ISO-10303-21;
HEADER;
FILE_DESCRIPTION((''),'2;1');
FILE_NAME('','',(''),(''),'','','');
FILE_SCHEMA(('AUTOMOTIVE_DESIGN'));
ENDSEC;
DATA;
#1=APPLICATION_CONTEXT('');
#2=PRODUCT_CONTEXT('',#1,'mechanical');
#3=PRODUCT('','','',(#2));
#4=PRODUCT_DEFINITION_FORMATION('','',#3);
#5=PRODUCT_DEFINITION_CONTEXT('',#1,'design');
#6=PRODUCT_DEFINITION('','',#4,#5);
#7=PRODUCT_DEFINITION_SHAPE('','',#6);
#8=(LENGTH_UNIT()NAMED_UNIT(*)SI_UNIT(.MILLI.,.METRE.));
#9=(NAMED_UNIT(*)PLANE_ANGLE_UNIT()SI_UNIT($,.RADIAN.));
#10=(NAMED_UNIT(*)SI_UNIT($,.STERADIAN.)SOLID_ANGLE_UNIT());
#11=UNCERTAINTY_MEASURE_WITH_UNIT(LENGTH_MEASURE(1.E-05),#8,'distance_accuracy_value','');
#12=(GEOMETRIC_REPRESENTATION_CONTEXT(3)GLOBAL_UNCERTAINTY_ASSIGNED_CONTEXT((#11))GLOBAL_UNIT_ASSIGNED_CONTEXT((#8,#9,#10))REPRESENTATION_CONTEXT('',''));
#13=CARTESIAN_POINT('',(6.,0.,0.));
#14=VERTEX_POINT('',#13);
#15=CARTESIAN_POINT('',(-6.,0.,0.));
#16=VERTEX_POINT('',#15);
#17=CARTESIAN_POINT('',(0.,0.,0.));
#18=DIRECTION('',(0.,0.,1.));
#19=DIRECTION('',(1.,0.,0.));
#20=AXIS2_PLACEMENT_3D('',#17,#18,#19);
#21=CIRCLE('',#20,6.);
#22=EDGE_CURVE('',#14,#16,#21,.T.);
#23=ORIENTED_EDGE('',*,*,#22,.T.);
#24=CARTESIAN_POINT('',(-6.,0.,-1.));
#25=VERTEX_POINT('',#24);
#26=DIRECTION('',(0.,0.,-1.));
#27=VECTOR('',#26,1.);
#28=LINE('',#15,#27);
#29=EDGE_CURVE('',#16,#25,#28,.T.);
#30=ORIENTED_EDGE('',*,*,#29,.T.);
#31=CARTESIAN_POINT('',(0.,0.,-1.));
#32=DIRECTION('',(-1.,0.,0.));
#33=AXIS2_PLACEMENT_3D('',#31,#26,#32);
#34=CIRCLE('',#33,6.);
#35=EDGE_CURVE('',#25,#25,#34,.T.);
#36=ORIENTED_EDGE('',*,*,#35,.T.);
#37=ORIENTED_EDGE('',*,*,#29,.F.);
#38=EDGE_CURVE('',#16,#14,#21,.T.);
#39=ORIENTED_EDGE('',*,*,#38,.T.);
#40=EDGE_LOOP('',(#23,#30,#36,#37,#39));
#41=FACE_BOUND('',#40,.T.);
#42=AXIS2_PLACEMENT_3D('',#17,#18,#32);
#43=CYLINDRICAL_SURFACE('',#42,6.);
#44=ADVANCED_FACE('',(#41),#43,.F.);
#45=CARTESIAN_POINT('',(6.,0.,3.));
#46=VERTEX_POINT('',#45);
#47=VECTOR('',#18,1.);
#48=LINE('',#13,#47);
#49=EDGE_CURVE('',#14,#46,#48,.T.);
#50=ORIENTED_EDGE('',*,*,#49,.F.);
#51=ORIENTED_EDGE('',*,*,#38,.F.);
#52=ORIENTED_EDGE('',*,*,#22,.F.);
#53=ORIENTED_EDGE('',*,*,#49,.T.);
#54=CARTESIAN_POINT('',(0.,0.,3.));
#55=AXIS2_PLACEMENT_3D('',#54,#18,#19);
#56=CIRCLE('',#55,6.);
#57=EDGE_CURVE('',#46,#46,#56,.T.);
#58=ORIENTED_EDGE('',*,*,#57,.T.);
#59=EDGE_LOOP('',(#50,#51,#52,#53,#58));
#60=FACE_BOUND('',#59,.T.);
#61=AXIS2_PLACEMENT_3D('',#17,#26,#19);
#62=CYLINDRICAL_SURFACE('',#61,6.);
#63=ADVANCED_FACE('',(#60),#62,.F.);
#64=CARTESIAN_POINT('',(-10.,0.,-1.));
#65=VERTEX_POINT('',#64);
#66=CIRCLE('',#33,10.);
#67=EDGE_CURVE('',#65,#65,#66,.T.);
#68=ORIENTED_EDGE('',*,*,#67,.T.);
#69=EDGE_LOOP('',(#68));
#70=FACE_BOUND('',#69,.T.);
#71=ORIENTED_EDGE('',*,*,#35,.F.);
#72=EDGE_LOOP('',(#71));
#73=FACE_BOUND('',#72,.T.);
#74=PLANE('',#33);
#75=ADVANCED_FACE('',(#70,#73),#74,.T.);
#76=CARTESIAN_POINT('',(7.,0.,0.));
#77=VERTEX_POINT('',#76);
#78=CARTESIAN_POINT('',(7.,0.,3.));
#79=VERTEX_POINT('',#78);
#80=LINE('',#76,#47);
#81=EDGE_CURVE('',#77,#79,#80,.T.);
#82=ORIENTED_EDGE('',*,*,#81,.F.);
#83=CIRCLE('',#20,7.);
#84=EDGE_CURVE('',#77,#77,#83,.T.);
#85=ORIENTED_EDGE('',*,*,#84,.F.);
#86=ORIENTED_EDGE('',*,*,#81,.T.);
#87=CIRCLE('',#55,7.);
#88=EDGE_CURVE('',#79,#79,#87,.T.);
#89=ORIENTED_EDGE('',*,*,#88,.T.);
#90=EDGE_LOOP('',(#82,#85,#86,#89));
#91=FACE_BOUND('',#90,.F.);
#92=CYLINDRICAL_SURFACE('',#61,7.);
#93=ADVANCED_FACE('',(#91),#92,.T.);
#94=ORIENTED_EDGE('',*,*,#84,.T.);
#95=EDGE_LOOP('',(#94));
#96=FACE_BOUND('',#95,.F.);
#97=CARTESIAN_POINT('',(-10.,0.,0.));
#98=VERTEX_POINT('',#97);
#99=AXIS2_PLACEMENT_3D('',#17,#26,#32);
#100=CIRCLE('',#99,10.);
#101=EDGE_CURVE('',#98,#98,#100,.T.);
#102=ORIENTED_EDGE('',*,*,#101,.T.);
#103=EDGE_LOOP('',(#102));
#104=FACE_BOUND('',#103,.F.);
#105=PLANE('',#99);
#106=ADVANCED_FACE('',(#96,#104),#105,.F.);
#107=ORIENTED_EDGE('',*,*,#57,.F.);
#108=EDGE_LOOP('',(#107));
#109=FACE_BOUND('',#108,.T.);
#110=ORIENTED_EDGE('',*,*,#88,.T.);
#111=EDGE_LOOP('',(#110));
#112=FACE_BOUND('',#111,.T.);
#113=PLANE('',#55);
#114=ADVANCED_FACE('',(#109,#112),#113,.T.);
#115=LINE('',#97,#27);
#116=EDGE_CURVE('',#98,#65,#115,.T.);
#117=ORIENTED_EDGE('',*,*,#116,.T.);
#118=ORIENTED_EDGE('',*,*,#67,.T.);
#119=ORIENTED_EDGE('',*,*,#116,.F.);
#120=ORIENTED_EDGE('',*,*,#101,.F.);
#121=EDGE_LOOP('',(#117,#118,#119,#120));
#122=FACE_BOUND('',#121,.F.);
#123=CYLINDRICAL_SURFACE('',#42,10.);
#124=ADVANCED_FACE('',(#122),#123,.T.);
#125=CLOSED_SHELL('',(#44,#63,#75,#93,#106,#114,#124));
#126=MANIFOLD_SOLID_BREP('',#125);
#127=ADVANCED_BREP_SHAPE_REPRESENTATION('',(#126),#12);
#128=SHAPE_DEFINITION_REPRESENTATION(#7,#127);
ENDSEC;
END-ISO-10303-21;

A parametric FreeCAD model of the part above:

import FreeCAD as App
import Part
import Sketcher
from FreeCAD import Vector
Q = App.Units.Quantity

doc = App.newDocument("Part")
params = doc.addObject("Spreadsheet::Sheet", "Params")
for row, (alias, value) in enumerate([
    ("sketch1_diameter", "14 mm"),
    ("sketch1_diameter2", "12 mm"),
    ("pad1_length", "3 mm"),
    ("sketch2_diameter", "20 mm"),
    ("sketch2_diameter2", "12 mm"),
    ("pad2_length", "1 mm"),
], start=1):
    params.set(f"A{row}", alias)
    params.set(f"B{row}", "=" + value)
    params.setAlias(f"B{row}", alias)

body = doc.addObject("PartDesign::Body", "Body")

# Sketch on XY plane
sketch1 = body.newObject("Sketcher::SketchObject", "Sketch")
sketch1.AttachmentSupport = (doc.getObject("XY_Plane"), [""])
sketch1.MapMode = "FlatFace"
sketch1.addGeometry([
    Part.Circle(Vector(0, 0, 0), Vector(0, 0, 1), 7),
    Part.Circle(Vector(0, 0, 0), Vector(0, 0, 1), 6),
], False)
sketch1.addConstraint([
    Sketcher.Constraint("Coincident", 0, 3, -1, 1),
    Sketcher.Constraint("Coincident", 1, 3, -1, 1),
    Sketcher.Constraint("Diameter", 0, Q("14 mm")),
    Sketcher.Constraint("Diameter", 1, Q("12 mm")),
])
sketch1.setExpression("Constraints[2]", "Params.sketch1_diameter")
sketch1.setExpression("Constraints[3]", "Params.sketch1_diameter2")
pad1 = body.newObject("PartDesign::Pad", "Pad")
pad1.Profile = sketch1
pad1.setExpression("Length", "Params.pad1_length")

# Sketch on XY plane
sketch2 = body.newObject("Sketcher::SketchObject", "Sketch001")
sketch2.AttachmentSupport = (doc.getObject("XY_Plane"), [""])
sketch2.MapMode = "FlatFace"
sketch2.addGeometry([
    Part.Circle(Vector(0, 0, 0), Vector(0, 0, 1), 10),
    Part.Circle(Vector(0, 0, 0), Vector(0, 0, 1), 6),
], False)
sketch2.addConstraint([
    Sketcher.Constraint("Coincident", 0, 3, -1, 1),
    Sketcher.Constraint("Coincident", 1, 3, -1, 1),
    Sketcher.Constraint("Diameter", 0, Q("20 mm")),
    Sketcher.Constraint("Diameter", 1, Q("12 mm")),
])
sketch2.setExpression("Constraints[2]", "Params.sketch2_diameter")
sketch2.setExpression("Constraints[3]", "Params.sketch2_diameter2")
pad2 = body.newObject("PartDesign::Pad", "Pad001")
pad2.Profile = sketch2
pad2.setExpression("Length", "Params.pad2_length")
pad2.Reversed = True

doc.recompute()
